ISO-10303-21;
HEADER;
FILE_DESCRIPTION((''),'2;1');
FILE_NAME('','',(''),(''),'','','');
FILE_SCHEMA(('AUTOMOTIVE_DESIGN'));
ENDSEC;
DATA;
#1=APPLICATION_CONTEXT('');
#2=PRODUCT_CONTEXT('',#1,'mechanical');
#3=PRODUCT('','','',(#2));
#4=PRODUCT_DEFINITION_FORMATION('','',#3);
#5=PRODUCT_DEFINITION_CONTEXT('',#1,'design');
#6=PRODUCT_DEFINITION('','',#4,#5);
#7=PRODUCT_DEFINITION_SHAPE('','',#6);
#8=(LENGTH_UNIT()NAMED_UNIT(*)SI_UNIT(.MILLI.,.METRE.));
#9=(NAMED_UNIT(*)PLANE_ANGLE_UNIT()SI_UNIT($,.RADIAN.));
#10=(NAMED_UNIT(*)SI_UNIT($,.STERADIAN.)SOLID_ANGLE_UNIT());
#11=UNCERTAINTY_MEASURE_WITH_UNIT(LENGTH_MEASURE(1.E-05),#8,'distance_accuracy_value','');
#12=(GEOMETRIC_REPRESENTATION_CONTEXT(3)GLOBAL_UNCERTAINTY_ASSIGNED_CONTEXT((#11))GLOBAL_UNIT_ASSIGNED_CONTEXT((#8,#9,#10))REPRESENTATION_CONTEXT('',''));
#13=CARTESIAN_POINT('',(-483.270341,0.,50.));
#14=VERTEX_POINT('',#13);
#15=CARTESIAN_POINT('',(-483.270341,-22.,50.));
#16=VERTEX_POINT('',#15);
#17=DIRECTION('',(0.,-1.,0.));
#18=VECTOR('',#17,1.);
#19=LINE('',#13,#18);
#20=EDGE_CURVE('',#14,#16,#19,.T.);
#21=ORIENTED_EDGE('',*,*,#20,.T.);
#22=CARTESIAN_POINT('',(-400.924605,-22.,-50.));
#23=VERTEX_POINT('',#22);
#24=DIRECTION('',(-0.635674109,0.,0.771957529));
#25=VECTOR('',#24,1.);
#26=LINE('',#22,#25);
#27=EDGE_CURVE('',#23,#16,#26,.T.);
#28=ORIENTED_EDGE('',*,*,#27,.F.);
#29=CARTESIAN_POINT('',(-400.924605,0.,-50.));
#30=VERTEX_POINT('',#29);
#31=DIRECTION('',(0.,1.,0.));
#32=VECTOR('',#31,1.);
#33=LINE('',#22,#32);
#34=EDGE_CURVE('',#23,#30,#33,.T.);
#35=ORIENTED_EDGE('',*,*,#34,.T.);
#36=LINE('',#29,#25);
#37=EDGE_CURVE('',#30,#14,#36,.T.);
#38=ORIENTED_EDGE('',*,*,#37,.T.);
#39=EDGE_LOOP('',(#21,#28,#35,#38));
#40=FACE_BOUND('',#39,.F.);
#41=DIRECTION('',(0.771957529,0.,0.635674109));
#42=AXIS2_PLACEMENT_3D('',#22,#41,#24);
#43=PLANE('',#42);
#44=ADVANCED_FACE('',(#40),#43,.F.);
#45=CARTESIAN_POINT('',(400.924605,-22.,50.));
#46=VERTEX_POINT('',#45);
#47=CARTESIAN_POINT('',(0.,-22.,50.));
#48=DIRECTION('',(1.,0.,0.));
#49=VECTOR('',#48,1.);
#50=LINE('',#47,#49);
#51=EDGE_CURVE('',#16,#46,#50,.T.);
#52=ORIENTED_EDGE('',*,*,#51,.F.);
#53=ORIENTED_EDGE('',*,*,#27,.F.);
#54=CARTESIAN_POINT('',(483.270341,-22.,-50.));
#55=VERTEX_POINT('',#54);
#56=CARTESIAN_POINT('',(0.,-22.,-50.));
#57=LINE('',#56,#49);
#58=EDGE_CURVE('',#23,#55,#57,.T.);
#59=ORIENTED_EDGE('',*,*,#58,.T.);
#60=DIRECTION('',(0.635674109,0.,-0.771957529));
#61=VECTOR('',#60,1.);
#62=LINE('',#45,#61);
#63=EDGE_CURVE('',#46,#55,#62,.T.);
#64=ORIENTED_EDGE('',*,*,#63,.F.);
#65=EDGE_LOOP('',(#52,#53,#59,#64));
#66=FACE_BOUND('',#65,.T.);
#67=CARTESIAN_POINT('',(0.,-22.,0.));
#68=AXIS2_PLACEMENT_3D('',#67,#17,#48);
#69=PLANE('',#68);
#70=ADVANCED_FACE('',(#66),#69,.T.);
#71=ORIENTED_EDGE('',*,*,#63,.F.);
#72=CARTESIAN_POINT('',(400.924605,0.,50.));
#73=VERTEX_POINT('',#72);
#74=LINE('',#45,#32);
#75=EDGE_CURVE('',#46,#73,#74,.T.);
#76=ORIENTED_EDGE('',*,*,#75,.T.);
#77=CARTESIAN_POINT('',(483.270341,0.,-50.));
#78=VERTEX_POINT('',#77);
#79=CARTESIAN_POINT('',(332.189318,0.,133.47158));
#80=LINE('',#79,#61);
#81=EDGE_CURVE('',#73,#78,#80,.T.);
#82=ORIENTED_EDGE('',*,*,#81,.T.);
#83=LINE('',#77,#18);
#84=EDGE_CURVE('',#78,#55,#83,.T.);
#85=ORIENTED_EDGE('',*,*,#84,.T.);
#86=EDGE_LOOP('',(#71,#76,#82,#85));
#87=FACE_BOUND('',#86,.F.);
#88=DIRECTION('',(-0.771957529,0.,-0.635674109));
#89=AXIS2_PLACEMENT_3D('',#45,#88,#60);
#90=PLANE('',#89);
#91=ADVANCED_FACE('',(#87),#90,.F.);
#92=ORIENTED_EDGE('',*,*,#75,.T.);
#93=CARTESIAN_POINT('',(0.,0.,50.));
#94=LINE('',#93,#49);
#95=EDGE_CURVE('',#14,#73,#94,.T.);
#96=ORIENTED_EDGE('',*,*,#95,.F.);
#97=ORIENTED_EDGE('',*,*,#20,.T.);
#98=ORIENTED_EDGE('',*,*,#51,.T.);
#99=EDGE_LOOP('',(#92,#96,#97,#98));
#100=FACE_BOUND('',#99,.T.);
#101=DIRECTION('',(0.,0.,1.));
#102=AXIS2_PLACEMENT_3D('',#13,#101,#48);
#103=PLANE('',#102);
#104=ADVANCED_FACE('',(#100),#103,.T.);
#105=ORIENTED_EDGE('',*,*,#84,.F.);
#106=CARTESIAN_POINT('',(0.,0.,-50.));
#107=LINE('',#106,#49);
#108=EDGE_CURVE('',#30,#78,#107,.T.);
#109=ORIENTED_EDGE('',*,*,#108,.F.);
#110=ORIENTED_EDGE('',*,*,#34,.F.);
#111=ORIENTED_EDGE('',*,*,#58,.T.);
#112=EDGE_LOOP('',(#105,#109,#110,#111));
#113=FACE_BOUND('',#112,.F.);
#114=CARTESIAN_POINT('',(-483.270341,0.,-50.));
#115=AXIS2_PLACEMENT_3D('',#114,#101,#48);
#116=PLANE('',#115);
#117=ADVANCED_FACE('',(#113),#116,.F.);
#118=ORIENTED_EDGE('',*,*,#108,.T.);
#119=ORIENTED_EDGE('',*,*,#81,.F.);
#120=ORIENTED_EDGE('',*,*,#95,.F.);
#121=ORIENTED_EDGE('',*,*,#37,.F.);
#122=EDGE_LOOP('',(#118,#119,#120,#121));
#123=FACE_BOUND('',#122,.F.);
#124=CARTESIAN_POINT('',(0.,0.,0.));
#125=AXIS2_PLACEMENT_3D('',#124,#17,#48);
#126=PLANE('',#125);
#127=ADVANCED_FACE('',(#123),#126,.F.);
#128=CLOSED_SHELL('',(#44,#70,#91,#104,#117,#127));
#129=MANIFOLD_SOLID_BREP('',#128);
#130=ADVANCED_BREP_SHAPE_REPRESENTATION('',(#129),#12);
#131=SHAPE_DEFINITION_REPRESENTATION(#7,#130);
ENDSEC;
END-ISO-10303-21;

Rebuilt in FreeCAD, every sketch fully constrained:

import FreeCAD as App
import Part
import Sketcher
Q = App.Units.Quantity

doc = App.newDocument("Part")
params = doc.addObject("Spreadsheet::Sheet", "Params")
for row, (alias, value) in enumerate([
    ("sketch1_height", "100 mm"),
    ("pad1_length", "22 mm"),
    ("sketch2_height", "100 mm"),
    ("pocket1_length", "22 mm"),
    ("sketch3_height", "100 mm"),
    ("pocket2_length", "25 mm"),
], start=1):
    params.set(f"A{row}", alias)
    params.set(f"B{row}", "=" + value)
    params.setAlias(f"B{row}", alias)

body = doc.addObject("PartDesign::Body", "Body")

sketch1 = body.newObject("Sketcher::SketchObject", "Sketch")
sketch1.AttachmentSupport = (doc.getObject("XZ_Plane"), [""])
sketch1.MapMode = "FlatFace"
sketch1.addGeometry([
    Part.LineSegment(App.Vector(-483, 50, 0), App.Vector(-483, -50, 0)),
    Part.LineSegment(App.Vector(-483, -50, 0), App.Vector(483, -50, 0)),
    Part.LineSegment(App.Vector(483, -50, 0), App.Vector(483, 50, 0)),
    Part.LineSegment(App.Vector(483, 50, 0), App.Vector(-483, 50, 0)),
], False)
sketch1.addConstraint([
    Sketcher.Constraint("Coincident", 0, 2, 1, 1),
    Sketcher.Constraint("Coincident", 1, 2, 2, 1),
    Sketcher.Constraint("Coincident", 2, 2, 3, 1),
    Sketcher.Constraint("Coincident", 3, 2, 0, 1),
    Sketcher.Constraint("Vertical", 0),
    Sketcher.Constraint("Horizontal", 1),
    Sketcher.Constraint("Vertical", 2),
    Sketcher.Constraint("Horizontal", 3),
    Sketcher.Constraint("Symmetric", 0, 2, 2, 2, -1, 1),
    Sketcher.Constraint("DistanceY", 0, 2, 0, 1, Q("100 mm")),
    Sketcher.Constraint("DistanceX", 1, 1, 1, 2, Q("966.540682 mm")),
])
sketch1.setExpression("Constraints[9]", "Params.sketch1_height")
pad1 = body.newObject("PartDesign::Pad", "Pad")
pad1.Profile = sketch1
pad1.setExpression("Length", "Params.pad1_length")

sketch2 = body.newObject("Sketcher::SketchObject", "Sketch001")
sketch2.AttachmentSupport = (doc.getObject("XZ_Plane"), [""])
sketch2.MapMode = "FlatFace"
sketch2.AttachmentOffset = App.Placement(App.Vector(0, 0, 22), App.Rotation())
sketch2.addGeometry([
    Part.LineSegment(App.Vector(-401, -50, 0), App.Vector(-483, 50, 0)),
    Part.LineSegment(App.Vector(-483, 50, 0), App.Vector(-483, -50, 0)),
    Part.LineSegment(App.Vector(-483, -50, 0), App.Vector(-401, -50, 0)),
], False)
sketch2.addConstraint([
    Sketcher.Constraint("Coincident", 0, 2, 1, 1),
    Sketcher.Constraint("Coincident", 1, 2, 2, 1),
    Sketcher.Constraint("Coincident", 2, 2, 0, 1),
    Sketcher.Constraint("Vertical", 1),
    Sketcher.Constraint("Horizontal", 2),
    Sketcher.Constraint("DistanceY", 1, 2, 1, 1, Q("100 mm")),
    Sketcher.Constraint("DistanceY", -1, 1, 0, 2, Q("50 mm")),
    Sketcher.Constraint("Angle", 0, Q("129.47 deg")),
    Sketcher.Constraint("DistanceX", 0, 2, -1, 1, Q("483.270341 mm")),
])
sketch2.setExpression("Constraints[5]", "Params.sketch2_height")
pocket1 = body.newObject("PartDesign::Pocket", "Pocket")
pocket1.Profile = sketch2
pocket1.setExpression("Length", "Params.pocket1_length")

sketch3 = body.newObject("Sketcher::SketchObject", "Sketch002")
sketch3.AttachmentSupport = (doc.getObject("XZ_Plane"), [""])
sketch3.MapMode = "FlatFace"
sketch3.AttachmentOffset = App.Placement(App.Vector(0, 0, 22), App.Rotation())
sketch3.addGeometry([
    Part.LineSegment(App.Vector(483, -50, 0), App.Vector(483, 50, 0)),
    Part.LineSegment(App.Vector(483, 50, 0), App.Vector(401, 50, 0)),
    Part.LineSegment(App.Vector(401, 50, 0), App.Vector(483, -50, 0)),
], False)
sketch3.addConstraint([
    Sketcher.Constraint("Coincident", 0, 2, 1, 1),
    Sketcher.Constraint("Coincident", 1, 2, 2, 1),
    Sketcher.Constraint("Coincident", 2, 2, 0, 1),
    Sketcher.Constraint("Vertical", 0),
    Sketcher.Constraint("Horizontal", 1),
    Sketcher.Constraint("DistanceY", 0, 1, 0, 2, Q("100 mm")),
    Sketcher.Constraint("DistanceY", -1, 1, 0, 2, Q("50 mm")),
    Sketcher.Constraint("Angle", 2, Q("-50.53 deg")),
    Sketcher.Constraint("DistanceX", -1, 1, 0, 2, Q("483.270341 mm")),
])
sketch3.setExpression("Constraints[5]", "Params.sketch3_height")
pocket2 = body.newObject("PartDesign::Pocket", "Pocket001")
pocket2.Profile = sketch3
pocket2.setExpression("Length", "Params.pocket2_length")

doc.recompute()
